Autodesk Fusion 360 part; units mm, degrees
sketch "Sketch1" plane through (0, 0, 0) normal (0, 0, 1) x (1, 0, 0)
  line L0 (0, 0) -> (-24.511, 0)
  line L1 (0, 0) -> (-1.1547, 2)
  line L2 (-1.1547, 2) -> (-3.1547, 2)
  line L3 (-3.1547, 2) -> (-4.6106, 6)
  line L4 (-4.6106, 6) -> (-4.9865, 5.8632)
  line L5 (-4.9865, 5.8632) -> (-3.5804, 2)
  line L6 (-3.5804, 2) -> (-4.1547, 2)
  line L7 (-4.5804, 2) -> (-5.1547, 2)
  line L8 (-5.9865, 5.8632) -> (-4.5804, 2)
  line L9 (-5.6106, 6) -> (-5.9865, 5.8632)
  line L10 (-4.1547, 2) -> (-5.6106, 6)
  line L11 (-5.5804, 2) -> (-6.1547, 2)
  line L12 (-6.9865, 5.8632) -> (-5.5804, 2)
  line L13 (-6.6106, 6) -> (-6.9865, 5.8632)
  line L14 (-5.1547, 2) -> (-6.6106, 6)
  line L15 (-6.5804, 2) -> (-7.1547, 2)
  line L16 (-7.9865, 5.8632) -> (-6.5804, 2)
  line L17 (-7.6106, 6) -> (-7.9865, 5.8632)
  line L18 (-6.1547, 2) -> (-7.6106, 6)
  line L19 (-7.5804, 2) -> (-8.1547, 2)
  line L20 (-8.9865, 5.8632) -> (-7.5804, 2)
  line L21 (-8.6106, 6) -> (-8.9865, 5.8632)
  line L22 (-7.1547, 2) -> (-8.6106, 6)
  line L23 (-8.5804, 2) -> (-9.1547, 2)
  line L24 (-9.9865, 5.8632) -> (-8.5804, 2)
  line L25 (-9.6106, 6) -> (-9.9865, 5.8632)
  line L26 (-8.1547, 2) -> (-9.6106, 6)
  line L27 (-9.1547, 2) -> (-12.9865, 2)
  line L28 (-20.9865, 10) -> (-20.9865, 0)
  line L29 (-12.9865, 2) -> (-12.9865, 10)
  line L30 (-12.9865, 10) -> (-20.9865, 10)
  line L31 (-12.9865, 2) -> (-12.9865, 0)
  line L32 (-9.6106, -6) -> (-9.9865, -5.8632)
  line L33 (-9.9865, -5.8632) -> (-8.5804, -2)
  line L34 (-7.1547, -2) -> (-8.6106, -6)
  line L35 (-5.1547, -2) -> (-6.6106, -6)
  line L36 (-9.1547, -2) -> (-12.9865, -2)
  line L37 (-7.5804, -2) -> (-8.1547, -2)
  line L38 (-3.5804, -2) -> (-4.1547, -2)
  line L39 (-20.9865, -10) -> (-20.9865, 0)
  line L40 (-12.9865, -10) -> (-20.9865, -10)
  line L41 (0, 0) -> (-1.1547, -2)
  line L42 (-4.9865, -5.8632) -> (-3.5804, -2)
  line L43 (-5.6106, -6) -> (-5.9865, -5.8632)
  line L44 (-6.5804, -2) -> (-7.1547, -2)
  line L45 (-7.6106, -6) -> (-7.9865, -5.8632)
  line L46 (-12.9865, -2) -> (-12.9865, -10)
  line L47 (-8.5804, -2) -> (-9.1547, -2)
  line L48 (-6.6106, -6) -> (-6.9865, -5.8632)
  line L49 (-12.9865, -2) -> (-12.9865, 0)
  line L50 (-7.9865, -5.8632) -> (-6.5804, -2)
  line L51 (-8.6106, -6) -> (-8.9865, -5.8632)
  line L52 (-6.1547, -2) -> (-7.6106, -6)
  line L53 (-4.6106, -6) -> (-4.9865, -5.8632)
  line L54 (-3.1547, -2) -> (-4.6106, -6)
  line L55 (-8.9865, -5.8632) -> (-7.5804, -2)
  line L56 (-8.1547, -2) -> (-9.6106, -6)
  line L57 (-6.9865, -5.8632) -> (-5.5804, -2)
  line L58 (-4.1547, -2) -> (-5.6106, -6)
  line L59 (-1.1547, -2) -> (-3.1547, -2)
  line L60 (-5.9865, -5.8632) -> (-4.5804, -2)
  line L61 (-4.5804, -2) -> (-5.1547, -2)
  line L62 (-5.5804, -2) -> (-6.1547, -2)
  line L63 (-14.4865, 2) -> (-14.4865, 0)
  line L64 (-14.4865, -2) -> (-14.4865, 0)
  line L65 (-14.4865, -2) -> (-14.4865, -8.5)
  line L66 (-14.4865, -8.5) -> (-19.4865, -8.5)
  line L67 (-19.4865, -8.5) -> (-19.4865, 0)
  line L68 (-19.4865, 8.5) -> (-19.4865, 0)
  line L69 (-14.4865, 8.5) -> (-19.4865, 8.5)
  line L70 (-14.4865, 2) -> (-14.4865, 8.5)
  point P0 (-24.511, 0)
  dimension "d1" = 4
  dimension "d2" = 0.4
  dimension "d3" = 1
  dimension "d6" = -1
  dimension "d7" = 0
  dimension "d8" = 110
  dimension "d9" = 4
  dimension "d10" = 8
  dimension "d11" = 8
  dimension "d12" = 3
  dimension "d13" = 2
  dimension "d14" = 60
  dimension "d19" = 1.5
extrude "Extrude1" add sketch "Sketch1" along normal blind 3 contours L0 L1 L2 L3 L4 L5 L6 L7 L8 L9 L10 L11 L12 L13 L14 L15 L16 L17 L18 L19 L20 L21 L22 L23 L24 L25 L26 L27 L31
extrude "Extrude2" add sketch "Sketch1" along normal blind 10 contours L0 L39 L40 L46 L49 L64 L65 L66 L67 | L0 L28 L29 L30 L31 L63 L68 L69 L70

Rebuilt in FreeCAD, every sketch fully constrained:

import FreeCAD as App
import Part
import Sketcher
from FreeCAD import Vector
Q = App.Units.Quantity


def add_polygon(sketch, points):
    """Adds a closed chain of lines whose ends are joined by coincident constraints."""
    first, n = sketch.GeometryCount, len(points)
    for a, b in zip(points, points[1:] + points[:1]):
        sketch.addGeometry(Part.LineSegment(App.Vector(*a, 0), App.Vector(*b, 0)), False)
    for i in range(n):
        sketch.addConstraint(Sketcher.Constraint("Coincident", first + i, 2, first + (i + 1) % n, 1))

doc = App.newDocument("Part")
params = doc.addObject("Spreadsheet::Sheet", "Params")
for row, (alias, value) in enumerate([
    ("sketch1_width", "2 mm"),
    ("sketch1_length", "0.4 mm"),
    ("pad1_length", "3 mm"),
    ("sketch2_width", "8 mm"),
    ("sketch2_height", "20 mm"),
    ("pad2_length", "10 mm"),
], start=1):
    params.set(f"A{row}", alias)
    params.set(f"B{row}", "=" + value)
    params.setAlias(f"B{row}", alias)

body = doc.addObject("PartDesign::Body", "Body")

# Sketch on XY plane
sketch1 = doc.addObject("Sketcher::SketchObject", "Sketch")
body.addObject(sketch1)
sketch1.AttachmentSupport = (doc.XY_Plane, [""])
sketch1.MapMode = "FlatFace"
add_polygon(sketch1, [(-12.99, 0), (0, 0), (-1.15, 2), (-3.15, 2), (-4.61, 6), (-4.99, 5.86), (-3.58, 2), (-4.15, 2), (-5.61, 6), (-5.99, 5.86), (-4.58, 2), (-5.15, 2), (-6.61, 6), (-6.99, 5.86), (-5.58, 2), (-6.15, 2), (-7.61, 6), (-7.99, 5.86), (-6.58, 2), (-7.15, 2), (-8.61, 6), (-8.99, 5.86), (-7.58, 2), (-8.15, 2), (-9.61, 6), (-9.99, 5.86), (-8.58, 2), (-12.99, 2)])  # lines 0-27
sketch1.addConstraint([
    Sketcher.Constraint("Horizontal", 0),
    Sketcher.Constraint("Horizontal", 2),
    Sketcher.Constraint("Horizontal", 6),
    Sketcher.Constraint("Horizontal", 10),
    Sketcher.Constraint("Horizontal", 14),
    Sketcher.Constraint("Horizontal", 18),
    Sketcher.Constraint("Horizontal", 22),
    Sketcher.Constraint("Horizontal", 26),
    Sketcher.Constraint("Vertical", 27),
    Sketcher.Constraint("Coincident", 0, 2, -1, 1),
    Sketcher.Constraint("Perpendicular", 3, 4),
    Sketcher.Constraint("Perpendicular", 4, 5),
    Sketcher.Constraint("Parallel", 5, 7),
    Sketcher.Constraint("Perpendicular", 7, 8),
    Sketcher.Constraint("Perpendicular", 8, 9),
    Sketcher.Constraint("Parallel", 9, 11),
    Sketcher.Constraint("Perpendicular", 11, 12),
    Sketcher.Constraint("Perpendicular", 12, 13),
    Sketcher.Constraint("Parallel", 13, 15),
    Sketcher.Constraint("Perpendicular", 15, 16),
    Sketcher.Constraint("Perpendicular", 16, 17),
    Sketcher.Constraint("Parallel", 17, 19),
    Sketcher.Constraint("Perpendicular", 19, 20),
    Sketcher.Constraint("Perpendicular", 20, 21),
    Sketcher.Constraint("Parallel", 21, 23),
    Sketcher.Constraint("Perpendicular", 23, 24),
    Sketcher.Constraint("Perpendicular", 24, 25),
    Sketcher.Constraint("Horizontal", 2, 2, 5, 2),
    Sketcher.Constraint("Horizontal", 3, 2, 7, 2),
    Sketcher.Constraint("Horizontal", 4, 2, 8, 2),
    Sketcher.Constraint("Horizontal", 6, 2, 9, 2),
    Sketcher.Constraint("Horizontal", 7, 2, 11, 2),
    Sketcher.Constraint("Horizontal", 8, 2, 12, 2),
    Sketcher.Constraint("Horizontal", 10, 2, 13, 2),
    Sketcher.Constraint("Horizontal", 11, 2, 15, 2),
    Sketcher.Constraint("Horizontal", 12, 2, 16, 2),
    Sketcher.Constraint("Horizontal", 14, 2, 17, 2),
    Sketcher.Constraint("Horizontal", 15, 2, 19, 2),
    Sketcher.Constraint("Horizontal", 16, 2, 20, 2),
    Sketcher.Constraint("Horizontal", 18, 2, 21, 2),
    Sketcher.Constraint("Horizontal", 19, 2, 23, 2),
    Sketcher.Constraint("Horizontal", 20, 2, 24, 2),
    Sketcher.Constraint("Horizontal", 22, 2, 25, 2),
    Sketcher.Constraint("Equal", 6, 10),
    Sketcher.Constraint("Equal", 10, 14),
    Sketcher.Constraint("Equal", 14, 18),
    Sketcher.Constraint("Equal", 18, 22),
    Sketcher.Constraint("Equal", 2, 27),
    Sketcher.Constraint("DistanceX", 2, 2, 2, 1, Q("2 mm")),
    Sketcher.Constraint("Angle", 3, Q("110.0002 deg")),
    Sketcher.Constraint("DistanceY", 2, 2, 3, 2, Q("4 mm")),
    Sketcher.Constraint("DistanceX", 6, 2, 2, 2, Q("1 mm")),
    Sketcher.Constraint("DistanceX", 26, 2, 24, 2, Q("3 mm")),
    Sketcher.Constraint("Distance", 4, Q("0.4 mm")),
    Sketcher.Constraint("Angle", 1, Q("120 deg")),
])
sketch1.setExpression("Constraints[76]", "Params.sketch1_width")
sketch1.setExpression("Constraints[81]", "Params.sketch1_length")
pad1 = doc.addObject("PartDesign::Pad", "Pad")
body.addObject(pad1)
pad1.Profile = sketch1
pad1.setExpression("Length", "Params.pad1_length")

# Sketch on XY plane
sketch2 = doc.addObject("Sketcher::SketchObject", "Sketch001")
body.addObject(sketch2)
sketch2.AttachmentSupport = (doc.XY_Plane, [""])
sketch2.MapMode = "FlatFace"
add_polygon(sketch2, [(-13, 10), (-21, 10), (-21, -10), (-13, -10)])  # lines 0-3
add_polygon(sketch2, [(-19, -8), (-19, 8), (-14, 8), (-14, -8)])  # lines 4-7
sketch2.addConstraint([
    Sketcher.Constraint("Horizontal", 0),
    Sketcher.Constraint("Vertical", 1),
    Sketcher.Constraint("Horizontal", 2),
    Sketcher.Constraint("Vertical", 3),
    Sketcher.Constraint("Vertical", 4),
    Sketcher.Constraint("Horizontal", 5),
    Sketcher.Constraint("Vertical", 6),
    Sketcher.Constraint("Horizontal", 7),
    Sketcher.Constraint("DistanceX", 0, 2, 0, 1, Q("8 mm")),
    Sketcher.Constraint("DistanceX", 0, 2, 4, 2, Q("1.5 mm")),
    Sketcher.Constraint("DistanceY", 4, 2, 0, 2, Q("1.5 mm")),
    Sketcher.Constraint("DistanceX", 5, 2, 3, 2, Q("1.5 mm")),
    Sketcher.Constraint("DistanceY", 2, 2, 6, 2, Q("1.5 mm")),
    Sketcher.Constraint("DistanceY", 1, 2, 1, 1, Q("20 mm")),
    Sketcher.Constraint("DistanceY", -1, 1, 0, 2, Q("10 mm")),
    Sketcher.Constraint("DistanceX", 0, 2, -1, 1, Q("20.9865 mm")),
])
sketch2.setExpression("Constraints[16]", "Params.sketch2_width")
sketch2.setExpression("Constraints[21]", "Params.sketch2_height")
pad2 = doc.addObject("PartDesign::Pad", "Pad001")
body.addObject(pad2)
pad2.Profile = sketch2
pad2.setExpression("Length", "Params.pad2_length")

doc.recompute()
